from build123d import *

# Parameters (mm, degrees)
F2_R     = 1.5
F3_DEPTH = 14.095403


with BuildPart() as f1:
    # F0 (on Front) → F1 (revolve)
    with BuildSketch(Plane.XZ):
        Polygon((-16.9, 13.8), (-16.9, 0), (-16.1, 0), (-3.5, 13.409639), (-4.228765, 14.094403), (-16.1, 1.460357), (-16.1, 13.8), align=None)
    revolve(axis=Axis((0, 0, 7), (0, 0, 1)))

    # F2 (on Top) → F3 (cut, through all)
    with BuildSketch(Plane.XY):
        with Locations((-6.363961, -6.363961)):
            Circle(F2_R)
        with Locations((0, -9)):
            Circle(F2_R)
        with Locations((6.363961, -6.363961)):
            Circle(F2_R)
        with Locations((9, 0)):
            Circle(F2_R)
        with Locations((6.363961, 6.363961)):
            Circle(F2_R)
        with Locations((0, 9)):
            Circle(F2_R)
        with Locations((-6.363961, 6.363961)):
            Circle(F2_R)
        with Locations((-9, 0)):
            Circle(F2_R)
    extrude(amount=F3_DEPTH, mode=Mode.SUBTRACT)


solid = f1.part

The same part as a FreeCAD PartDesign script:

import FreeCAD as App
import Part
import Sketcher
from FreeCAD import Vector

doc = App.newDocument("Part")
body = doc.addObject("PartDesign::Body", "Body")

# Sketch on XZ plane
sketch1 = body.newObject("Sketcher::SketchObject", "Sketch")
sketch1.AttachmentSupport = (doc.getObject("XZ_Plane"), [""])
sketch1.MapMode = "FlatFace"
sketch1.addGeometry([
    Part.LineSegment(Vector(-16.9, 13.8, 0), Vector(-16.9, 0, 0)),  # 0
    Part.LineSegment(Vector(-16.9, 0, 0), Vector(-16.1, 0, 0)),  # 1
    Part.LineSegment(Vector(-16.1, 0, 0), Vector(-3.5, 13.4, 0)),  # 2
    Part.LineSegment(Vector(-3.5, 13.4, 0), Vector(-4.2, 14.1, 0)),  # 3
    Part.LineSegment(Vector(-4.2, 14.1, 0), Vector(-16.1, 1.5, 0)),  # 4
    Part.LineSegment(Vector(-16.1, 1.5, 0), Vector(-16.1, 13.8, 0)),  # 5
    Part.LineSegment(Vector(-16.1, 13.8, 0), Vector(-16.9, 13.8, 0)),  # 6
], False)
sketch1.addConstraint([
    Sketcher.Constraint("Coincident", 0, 2, 1, 1),
    Sketcher.Constraint("Coincident", 1, 2, 2, 1),
    Sketcher.Constraint("Coincident", 2, 2, 3, 1),
    Sketcher.Constraint("Coincident", 3, 2, 4, 1),
    Sketcher.Constraint("Coincident", 4, 2, 5, 1),
    Sketcher.Constraint("Coincident", 5, 2, 6, 1),
    Sketcher.Constraint("Coincident", 6, 2, 0, 1),
    Sketcher.Constraint("Vertical", 0),
    Sketcher.Constraint("Horizontal", 1),
    Sketcher.Constraint("Vertical", 5),
    Sketcher.Constraint("Horizontal", 6),
    Sketcher.Constraint("PointOnObject", 0, 2, -1),
    Sketcher.Constraint("Perpendicular", 2, 3),
    Sketcher.Constraint("Perpendicular", 3, 4),
    Sketcher.Constraint("Vertical", 1, 2, 4, 2),
    Sketcher.Constraint("Distance", 3, 1.0),
    Sketcher.Constraint("DistanceX", 1, 1, 1, 2, 0.8),
    Sketcher.Constraint("DistanceY", 0, 2, 0, 1, 13.8),
    Sketcher.Constraint("DistanceX", 0, 2, -1, 1, 16.9),
    Sketcher.Constraint("DistanceX", 2, 2, -1, 1, 3.5),
    Sketcher.Constraint("Distance", 2, 18.4005),
])
revolution = body.newObject("PartDesign::Revolution", "Revolution")
revolution.Profile = sketch1
revolution.ReferenceAxis = (sketch1, ["V_Axis"])
revolution.Angle = 360

# Sketch on XY plane
sketch2 = body.newObject("Sketcher::SketchObject", "Sketch001")
sketch2.AttachmentSupport = (doc.getObject("XY_Plane"), [""])
sketch2.MapMode = "FlatFace"
sketch2.addGeometry([
    Part.Circle(Vector(-6.4, -6.4, 0), Vector(0, 0, 1), 1.5),  # 0
    Part.Circle(Vector(0, -9, 0), Vector(0, 0, 1), 1.5),  # 1
    Part.Circle(Vector(6.4, -6.4, 0), Vector(0, 0, 1), 1.5),  # 2
    Part.Circle(Vector(9, 0, 0), Vector(0, 0, 1), 1.5),  # 3
    Part.Circle(Vector(6.4, 6.4, 0), Vector(0, 0, 1), 1.5),  # 4
    Part.Circle(Vector(0, 9, 0), Vector(0, 0, 1), 1.5),  # 5
    Part.Circle(Vector(-6.4, 6.4, 0), Vector(0, 0, 1), 1.5),  # 6
    Part.Circle(Vector(-9, 0, 0), Vector(0, 0, 1), 1.5),  # 7
], False)
sketch2.addConstraint([
    Sketcher.Constraint("Equal", 0, 1),
    Sketcher.Constraint("Equal", 1, 2),
    Sketcher.Constraint("Equal", 2, 3),
    Sketcher.Constraint("Equal", 3, 4),
    Sketcher.Constraint("Equal", 4, 5),
    Sketcher.Constraint("Equal", 5, 6),
    Sketcher.Constraint("Equal", 6, 7),
    Sketcher.Constraint("Symmetric", 0, 3, 4, 3, -1, 1),
    Sketcher.Constraint("Symmetric", 1, 3, 5, 3, -1, 1),
    Sketcher.Constraint("Symmetric", 2, 3, 6, 3, -1, 1),
    Sketcher.Constraint("Symmetric", 3, 3, 7, 3, -1, 1),
    Sketcher.Constraint("Symmetric", 0, 3, 2, 3, -2),
    Sketcher.Constraint("PointOnObject", 1, 3, -2),
    Sketcher.Constraint("PointOnObject", 3, 3, -1),
    Sketcher.Constraint("Diameter", 0, 3.0),
    Sketcher.Constraint("DistanceY", 1, 3, -1, 1, 9.0),
    Sketcher.Constraint("DistanceX", -1, 1, 3, 3, 9.0),
    Sketcher.Constraint("DistanceX", 0, 3, -1, 1, 6.363961),
    Sketcher.Constraint("DistanceY", 0, 3, -1, 1, 6.363961),
])
pocket1 = body.newObject("PartDesign::Pocket", "Pocket")
pocket1.Profile = sketch2
pocket1.Type = "ThroughAll"
pocket1.Reversed = True

doc.recompute()
